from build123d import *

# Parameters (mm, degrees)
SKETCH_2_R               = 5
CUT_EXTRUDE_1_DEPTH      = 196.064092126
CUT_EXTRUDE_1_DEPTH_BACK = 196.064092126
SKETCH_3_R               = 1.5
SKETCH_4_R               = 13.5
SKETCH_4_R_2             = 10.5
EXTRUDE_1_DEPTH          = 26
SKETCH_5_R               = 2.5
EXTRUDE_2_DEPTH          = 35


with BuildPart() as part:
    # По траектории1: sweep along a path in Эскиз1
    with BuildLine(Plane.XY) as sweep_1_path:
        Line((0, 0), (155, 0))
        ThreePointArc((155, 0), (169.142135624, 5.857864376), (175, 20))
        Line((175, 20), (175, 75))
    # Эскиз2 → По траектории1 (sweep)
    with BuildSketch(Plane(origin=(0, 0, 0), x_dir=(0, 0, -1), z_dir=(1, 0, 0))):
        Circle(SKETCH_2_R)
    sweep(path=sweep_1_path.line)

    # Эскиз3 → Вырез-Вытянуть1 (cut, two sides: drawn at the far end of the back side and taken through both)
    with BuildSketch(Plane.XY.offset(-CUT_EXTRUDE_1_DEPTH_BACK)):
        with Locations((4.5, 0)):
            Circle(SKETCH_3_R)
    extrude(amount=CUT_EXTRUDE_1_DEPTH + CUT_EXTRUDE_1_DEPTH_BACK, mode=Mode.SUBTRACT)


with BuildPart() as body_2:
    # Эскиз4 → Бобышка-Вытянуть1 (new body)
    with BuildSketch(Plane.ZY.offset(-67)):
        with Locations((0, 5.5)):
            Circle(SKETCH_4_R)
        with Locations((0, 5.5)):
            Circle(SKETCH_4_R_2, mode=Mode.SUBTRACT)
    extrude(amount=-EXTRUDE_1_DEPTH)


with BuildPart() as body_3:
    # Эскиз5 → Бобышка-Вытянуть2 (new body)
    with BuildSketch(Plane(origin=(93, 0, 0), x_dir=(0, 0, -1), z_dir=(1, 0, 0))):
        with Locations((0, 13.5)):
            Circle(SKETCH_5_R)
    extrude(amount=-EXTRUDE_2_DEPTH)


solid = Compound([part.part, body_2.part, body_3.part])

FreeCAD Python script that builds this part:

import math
import FreeCAD as App
import Part
import Sketcher

V = App.Vector

doc = App.newDocument("Part")
body = doc.addObject("PartDesign::Body", "Body")

# Sketch on YZ plane
sketch1 = body.newObject("Sketcher::SketchObject", "Sketch")
sketch1.AttachmentSupport = (doc.getObject("YZ_Plane"), [""])
sketch1.MapMode = "FlatFace"
sketch1.addGeometry(Part.Circle(V(0, 0, 0), V(0, 0, 1), 5), False)
sketch1.addConstraint(Sketcher.Constraint("Coincident", 0, 3, -1, 1))
sketch1.addConstraint(Sketcher.Constraint("Diameter", 0, 10.0))

# Sketch on XY plane
sketch2 = body.newObject("Sketcher::SketchObject", "Sketch001")
sketch2.AttachmentSupport = (doc.getObject("XY_Plane"), [""])
sketch2.MapMode = "FlatFace"
sketch2.addGeometry(Part.LineSegment(V(0, 0, 0), V(155, 0, 0)), False)
sketch2.addGeometry(Part.ArcOfCircle(Part.Circle(V(155, 20, 0), V(0, 0, 1), 20), math.radians(-90), math.radians(0)), False)
sketch2.addGeometry(Part.LineSegment(V(175, 20, 0), V(175, 75, 0)), False)
sketch2.addConstraint(Sketcher.Constraint("Tangent", 0, 2, 1, 1))
sketch2.addConstraint(Sketcher.Constraint("Tangent", 1, 2, 2, 1))
sketch2.addConstraint(Sketcher.Constraint("Horizontal", 0))
sketch2.addConstraint(Sketcher.Constraint("Vertical", 2))
sketch2.addConstraint(Sketcher.Constraint("Coincident", 0, 1, -1, 1))
sketch2.addConstraint(Sketcher.Constraint("Radius", 1, 20.0))
sketch2.addConstraint(Sketcher.Constraint("DistanceX", 0, 1, 0, 2, 155.0))
sketch2.addConstraint(Sketcher.Constraint("DistanceY", 2, 1, 2, 2, 55.0))
doc.recompute()

additivepipe = body.newObject("PartDesign::AdditivePipe", "AdditivePipe")
additivepipe.Profile = sketch1
additivepipe.Spine = (sketch2, ["Edge1", "Edge2", "Edge3"])

# Sketch on XY plane
sketch3 = body.newObject("Sketcher::SketchObject", "Sketch002")
sketch3.AttachmentSupport = (doc.getObject("XY_Plane"), [""])
sketch3.MapMode = "FlatFace"
sketch3.addGeometry(Part.Circle(V(4.5, 0, 0), V(0, 0, 1), 1.5), False)
sketch3.addConstraint(Sketcher.Constraint("PointOnObject", 0, 3, -1))
sketch3.addConstraint(Sketcher.Constraint("Diameter", 0, 3.0))
sketch3.addConstraint(Sketcher.Constraint("DistanceX", -1, 1, 0, 3, 4.5))
pocket1 = body.newObject("PartDesign::Pocket", "Pocket")
pocket1.Profile = sketch3
pocket1.Type = "ThroughAll"
pocket1.Midplane = True
body2 = doc.addObject("PartDesign::Body", "Body001")

# Sketch on YZ plane
sketch4 = body2.newObject("Sketcher::SketchObject", "Sketch003")
sketch4.AttachmentSupport = (doc.getObject("YZ_Plane001"), [""])
sketch4.MapMode = "FlatFace"
sketch4.AttachmentOffset = App.Placement(V(0, 0, 67), App.Rotation())
sketch4.addGeometry(Part.Circle(V(6, 0, 0), V(0, 0, 1), 14), False)
sketch4.addGeometry(Part.Circle(V(6, 0, 0), V(0, 0, 1), 10), False)
sketch4.addConstraint(Sketcher.Constraint("Coincident", 1, 3, 0, 3))
sketch4.addConstraint(Sketcher.Constraint("PointOnObject", 0, 3, -1))
sketch4.addConstraint(Sketcher.Constraint("Diameter", 0, 27.0))
sketch4.addConstraint(Sketcher.Constraint("Diameter", 1, 21.0))
sketch4.addConstraint(Sketcher.Constraint("DistanceX", -1, 1, 0, 3, 5.5))
pad1 = body2.newObject("PartDesign::Pad", "Pad")
pad1.Profile = sketch4
pad1.Length = 26
body3 = doc.addObject("PartDesign::Body", "Body002")

# Sketch on YZ plane
sketch5 = body3.newObject("Sketcher::SketchObject", "Sketch004")
sketch5.AttachmentSupport = (doc.getObject("YZ_Plane002"), [""])
sketch5.MapMode = "FlatFace"
sketch5.AttachmentOffset = App.Placement(V(0, 0, 93), App.Rotation())
sketch5.addGeometry(Part.Circle(V(13.5, 0, 0), V(0, 0, 1), 2.5), False)
sketch5.addConstraint(Sketcher.Constraint("PointOnObject", 0, 3, -1))
sketch5.addConstraint(Sketcher.Constraint("Diameter", 0, 5.0))
sketch5.addConstraint(Sketcher.Constraint("DistanceX", -1, 1, 0, 3, 13.5))
pad2 = body3.newObject("PartDesign::Pad", "Pad001")
pad2.Profile = sketch5
pad2.Length = 35
pad2.Reversed = True

doc.recompute()
